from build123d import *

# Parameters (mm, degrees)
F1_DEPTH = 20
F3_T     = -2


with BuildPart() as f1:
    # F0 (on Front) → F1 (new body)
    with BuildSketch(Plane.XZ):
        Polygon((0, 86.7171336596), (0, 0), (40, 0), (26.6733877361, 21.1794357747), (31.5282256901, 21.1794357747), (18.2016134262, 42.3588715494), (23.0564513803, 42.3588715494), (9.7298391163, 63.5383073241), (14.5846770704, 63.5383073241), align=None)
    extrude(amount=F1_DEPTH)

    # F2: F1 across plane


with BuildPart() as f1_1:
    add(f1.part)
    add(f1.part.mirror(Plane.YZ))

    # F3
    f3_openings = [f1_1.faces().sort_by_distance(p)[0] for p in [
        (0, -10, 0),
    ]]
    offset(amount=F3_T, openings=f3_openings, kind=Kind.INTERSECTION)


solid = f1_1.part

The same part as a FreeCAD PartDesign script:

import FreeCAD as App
import Part
import Sketcher
from FreeCAD import Vector
Q = App.Units.Quantity


def faces_at(feature, points):
    """Names of the faces that lie closest to the given points."""
    faces = feature.Shape.Faces
    near = lambda p: min(range(len(faces)), key=lambda i: faces[i].distToShape(Part.Vertex(*p))[0])
    return sorted({f"Face{near(p) + 1}" for p in points})

doc = App.newDocument("Part")
params = doc.addObject("Spreadsheet::Sheet", "Params")
for row, (alias, value) in enumerate([
    ("sketch1_width", "40 mm"),
    ("pad1_length", "20 mm"),
    ("thickness_wall", "2 mm"),
], start=1):
    params.set(f"A{row}", alias)
    params.set(f"B{row}", "=" + value)
    params.setAlias(f"B{row}", alias)

body = doc.addObject("PartDesign::Body", "Body")

# Sketch on XZ plane
sketch1 = body.newObject("Sketcher::SketchObject", "Sketch")
sketch1.AttachmentSupport = (doc.getObject("XZ_Plane"), [""])
sketch1.MapMode = "FlatFace"
sketch1.addGeometry(Part.LineSegment(Vector(0, 86.717134, 0), Vector(0, 0, 0)), False)
sketch1.addGeometry(Part.LineSegment(Vector(0, 0, 0), Vector(40, 0, 0)), False)
sketch1.addGeometry(Part.LineSegment(Vector(40, 0, 0), Vector(26.673388, 21.179436, 0)), False)
sketch1.addGeometry(Part.LineSegment(Vector(26.673388, 21.179436, 0), Vector(31.528226, 21.179436, 0)), False)
sketch1.addGeometry(Part.LineSegment(Vector(31.528226, 21.179436, 0), Vector(18.201613, 42.358872, 0)), False)
sketch1.addGeometry(Part.LineSegment(Vector(18.201613, 42.358872, 0), Vector(23.056451, 42.358872, 0)), False)
sketch1.addGeometry(Part.LineSegment(Vector(23.056451, 42.358872, 0), Vector(9.729839, 63.538307, 0)), False)
sketch1.addGeometry(Part.LineSegment(Vector(9.729839, 63.538307, 0), Vector(14.584677, 63.538307, 0)), False)
sketch1.addGeometry(Part.LineSegment(Vector(14.584677, 63.538307, 0), Vector(0, 86.717134, 0)), False)
sketch1.addConstraint(Sketcher.Constraint("Coincident", 0, 2, 1, 1))
sketch1.addConstraint(Sketcher.Constraint("Coincident", 1, 2, 2, 1))
sketch1.addConstraint(Sketcher.Constraint("Coincident", 2, 2, 3, 1))
sketch1.addConstraint(Sketcher.Constraint("Coincident", 3, 2, 4, 1))
sketch1.addConstraint(Sketcher.Constraint("Coincident", 4, 2, 5, 1))
sketch1.addConstraint(Sketcher.Constraint("Coincident", 5, 2, 6, 1))
sketch1.addConstraint(Sketcher.Constraint("Coincident", 6, 2, 7, 1))
sketch1.addConstraint(Sketcher.Constraint("Coincident", 7, 2, 8, 1))
sketch1.addConstraint(Sketcher.Constraint("Coincident", 8, 2, 0, 1))
sketch1.addConstraint(Sketcher.Constraint("Vertical", 0))
sketch1.addConstraint(Sketcher.Constraint("Horizontal", 1))
sketch1.addConstraint(Sketcher.Constraint("Horizontal", 3))
sketch1.addConstraint(Sketcher.Constraint("Horizontal", 5))
sketch1.addConstraint(Sketcher.Constraint("Horizontal", 7))
sketch1.addConstraint(Sketcher.Constraint("Coincident", 0, 2, -1, 1))
sketch1.addConstraint(Sketcher.Constraint("Parallel", 2, 4))
sketch1.addConstraint(Sketcher.Constraint("Parallel", 4, 6))
sketch1.addConstraint(Sketcher.Constraint("Parallel", 6, 8))
sketch1.addConstraint(Sketcher.Constraint("Equal", 3, 5))
sketch1.addConstraint(Sketcher.Constraint("Equal", 5, 7))
sketch1.addConstraint(Sketcher.Constraint("Equal", 2, 4))
sketch1.addConstraint(Sketcher.Constraint("Equal", 4, 6))
sketch1.addConstraint(Sketcher.Constraint("DistanceX", 1, 1, 1, 2, Q("40 mm")))
sketch1.addConstraint(Sketcher.Constraint("Distance", 2, Q("25.023331 mm")))
sketch1.addConstraint(Sketcher.Constraint("DistanceX", 3, 1, 3, 2, Q("4.854838 mm")))
sketch1.addConstraint(Sketcher.Constraint("DistanceY", 0, 2, 0, 1, Q("86.717134 mm")))
sketch1.setExpression("Constraints[22]", "Params.sketch1_width")
pad1 = body.newObject("PartDesign::Pad", "Pad")
pad1.Profile = sketch1
pad1.setExpression("Length", "Params.pad1_length")
body2 = doc.addObject("PartDesign::Body", "Body001")
doc.recompute()

body2.BaseFeature = body
doc.recompute()

mirroring = doc.addObject("Part::Mirroring", "Mirroring")
mirroring.Source = body
mirroring.Base = Vector(0, 0, 0)
mirroring.Normal = Vector(1, 0, 0)
body3 = doc.addObject("PartDesign::Body", "Body002")
body3.BaseFeature = mirroring
boolean = body2.newObject("PartDesign::Boolean", "Boolean")
boolean.Type = "Fuse"
boolean.addObjects([body3])
doc.recompute()

thickness = body2.newObject("PartDesign::Thickness", "Thickness")
thickness.Base = (boolean, faces_at(boolean, [(0, -10, 0)]))
thickness.setExpression("Value", "Params.thickness_wall")
thickness.Reversed = True
thickness.Join = "Intersection"
mirroring.Visibility = False

doc.recompute()
